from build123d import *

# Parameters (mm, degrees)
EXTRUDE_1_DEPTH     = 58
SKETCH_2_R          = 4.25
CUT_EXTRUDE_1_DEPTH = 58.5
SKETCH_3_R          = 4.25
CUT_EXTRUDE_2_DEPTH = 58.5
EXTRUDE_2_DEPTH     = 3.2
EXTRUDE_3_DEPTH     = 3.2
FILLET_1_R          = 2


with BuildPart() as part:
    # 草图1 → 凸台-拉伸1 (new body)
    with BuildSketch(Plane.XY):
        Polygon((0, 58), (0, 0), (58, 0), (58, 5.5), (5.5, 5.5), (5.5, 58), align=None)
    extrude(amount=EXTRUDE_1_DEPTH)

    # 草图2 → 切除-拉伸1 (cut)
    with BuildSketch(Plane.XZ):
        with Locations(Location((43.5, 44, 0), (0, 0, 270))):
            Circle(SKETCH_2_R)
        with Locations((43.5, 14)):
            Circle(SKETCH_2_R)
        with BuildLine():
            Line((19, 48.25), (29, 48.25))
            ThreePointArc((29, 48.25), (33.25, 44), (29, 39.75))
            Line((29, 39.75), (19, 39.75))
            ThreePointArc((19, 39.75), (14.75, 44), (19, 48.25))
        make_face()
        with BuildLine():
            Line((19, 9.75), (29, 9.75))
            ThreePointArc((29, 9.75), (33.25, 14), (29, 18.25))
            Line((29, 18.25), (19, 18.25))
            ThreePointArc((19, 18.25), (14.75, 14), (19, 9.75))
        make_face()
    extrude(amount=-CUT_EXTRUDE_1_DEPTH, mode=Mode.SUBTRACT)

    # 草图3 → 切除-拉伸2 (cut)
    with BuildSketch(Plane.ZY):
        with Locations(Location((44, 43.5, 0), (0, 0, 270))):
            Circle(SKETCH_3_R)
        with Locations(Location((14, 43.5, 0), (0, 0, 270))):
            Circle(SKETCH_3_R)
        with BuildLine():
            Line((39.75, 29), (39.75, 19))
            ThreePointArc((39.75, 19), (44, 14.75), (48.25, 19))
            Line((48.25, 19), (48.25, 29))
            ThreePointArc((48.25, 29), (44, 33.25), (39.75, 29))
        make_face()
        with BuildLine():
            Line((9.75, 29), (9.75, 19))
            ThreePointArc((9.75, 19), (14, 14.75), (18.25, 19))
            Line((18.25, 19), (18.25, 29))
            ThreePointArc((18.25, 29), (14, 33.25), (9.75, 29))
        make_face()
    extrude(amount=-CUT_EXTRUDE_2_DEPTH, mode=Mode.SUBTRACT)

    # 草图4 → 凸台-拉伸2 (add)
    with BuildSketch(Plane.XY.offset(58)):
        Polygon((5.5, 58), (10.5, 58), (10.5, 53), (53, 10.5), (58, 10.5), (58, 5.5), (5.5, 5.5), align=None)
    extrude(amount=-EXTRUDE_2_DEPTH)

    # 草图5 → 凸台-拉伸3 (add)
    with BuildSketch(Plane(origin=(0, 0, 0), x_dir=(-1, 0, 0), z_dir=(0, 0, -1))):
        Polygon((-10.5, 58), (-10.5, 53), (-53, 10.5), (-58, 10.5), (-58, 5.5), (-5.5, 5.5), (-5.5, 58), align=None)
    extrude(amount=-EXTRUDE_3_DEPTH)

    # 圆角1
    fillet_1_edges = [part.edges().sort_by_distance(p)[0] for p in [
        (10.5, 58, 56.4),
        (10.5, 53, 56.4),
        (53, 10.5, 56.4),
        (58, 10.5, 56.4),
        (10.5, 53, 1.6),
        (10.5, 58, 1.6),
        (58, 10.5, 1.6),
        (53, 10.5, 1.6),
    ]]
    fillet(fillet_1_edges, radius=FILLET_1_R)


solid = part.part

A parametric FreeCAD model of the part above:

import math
import FreeCAD as App
import Part
import Sketcher

V = App.Vector


def edges_at(feature, points):
    """Names of the edges that pass closest to the given points."""
    edges = feature.Shape.Edges
    near = lambda p: min(range(len(edges)), key=lambda i: edges[i].distToShape(Part.Vertex(*p))[0])
    return sorted({f"Edge{near(p) + 1}" for p in points})

doc = App.newDocument("Part")
body = doc.addObject("PartDesign::Body", "Body")

# Sketch on XY plane
sketch1 = body.newObject("Sketcher::SketchObject", "Sketch")
sketch1.AttachmentSupport = (doc.getObject("XY_Plane"), [""])
sketch1.MapMode = "FlatFace"
sketch1.addGeometry([
    Part.LineSegment(V(0, 58, 0), V(0, 0, 0)),  # 0
    Part.LineSegment(V(0, 0, 0), V(58, 0, 0)),  # 1
    Part.LineSegment(V(58, 0, 0), V(58, 6, 0)),  # 2
    Part.LineSegment(V(58, 6, 0), V(6, 6, 0)),  # 3
    Part.LineSegment(V(6, 6, 0), V(6, 58, 0)),  # 4
    Part.LineSegment(V(6, 58, 0), V(0, 58, 0)),  # 5
], False)
sketch1.addConstraint([
    Sketcher.Constraint("Coincident", 0, 2, 1, 1),
    Sketcher.Constraint("Coincident", 1, 2, 2, 1),
    Sketcher.Constraint("Coincident", 2, 2, 3, 1),
    Sketcher.Constraint("Coincident", 3, 2, 4, 1),
    Sketcher.Constraint("Coincident", 4, 2, 5, 1),
    Sketcher.Constraint("Coincident", 5, 2, 0, 1),
    Sketcher.Constraint("Vertical", 0),
    Sketcher.Constraint("Horizontal", 1),
    Sketcher.Constraint("Vertical", 2),
    Sketcher.Constraint("Horizontal", 3),
    Sketcher.Constraint("Vertical", 4),
    Sketcher.Constraint("Horizontal", 5),
    Sketcher.Constraint("Coincident", 0, 2, -1, 1),
    Sketcher.Constraint("Equal", 1, 0),
    Sketcher.Constraint("Equal", 5, 2),
    Sketcher.Constraint("DistanceX", 1, 1, 1, 2, 58.0),
    Sketcher.Constraint("DistanceX", 3, 2, 3, 1, 52.5),
])
pad1 = body.newObject("PartDesign::Pad", "Pad")
pad1.Profile = sketch1
pad1.Length = 58

# Sketch on XZ plane
sketch2 = body.newObject("Sketcher::SketchObject", "Sketch001")
sketch2.AttachmentSupport = (doc.getObject("XZ_Plane"), [""])
sketch2.MapMode = "FlatFace"
sketch2.addGeometry([
    Part.Circle(V(43.5, 44, 0), V(0, 0, 1), 4.2),  # 0
    Part.Circle(V(43.5, 14, 0), V(0, 0, 1), 4.2),  # 1
    Part.LineSegment(V(29, 48.2, 0), V(19, 48.2, 0)),  # 2
    Part.ArcOfCircle(Part.Circle(V(19, 44, 0), V(0, 0, 1), 4.2), math.radians(90), math.radians(270)),  # 3
    Part.LineSegment(V(19, 39.8, 0), V(29, 39.8, 0)),  # 4
    Part.ArcOfCircle(Part.Circle(V(29, 44, 0), V(0, 0, 1), 4.2), math.radians(-90), math.radians(90)),  # 5
    Part.LineSegment(V(19, 9.8, 0), V(29, 9.8, 0)),  # 6
    Part.ArcOfCircle(Part.Circle(V(29, 14, 0), V(0, 0, 1), 4.2), math.radians(-90), math.radians(90)),  # 7
    Part.LineSegment(V(29, 18.2, 0), V(19, 18.2, 0)),  # 8
    Part.ArcOfCircle(Part.Circle(V(19, 14, 0), V(0, 0, 1), 4.2), math.radians(90), math.radians(270)),  # 9
], False)
sketch2.addConstraint([
    Sketcher.Constraint("Tangent", 2, 2, 3, 1),
    Sketcher.Constraint("Tangent", 3, 2, 4, 1),
    Sketcher.Constraint("Tangent", 4, 2, 5, 1),
    Sketcher.Constraint("Tangent", 5, 2, 2, 1),
    Sketcher.Constraint("Tangent", 6, 2, 7, 1),
    Sketcher.Constraint("Tangent", 7, 2, 8, 1),
    Sketcher.Constraint("Tangent", 8, 2, 9, 1),
    Sketcher.Constraint("Tangent", 9, 2, 6, 1),
    Sketcher.Constraint("Horizontal", 2),
    Sketcher.Constraint("Horizontal", 4),
    Sketcher.Constraint("Horizontal", 6),
    Sketcher.Constraint("Horizontal", 8),
    Sketcher.Constraint("Equal", 0, 1),
    Sketcher.Constraint("Equal", 1, 3),
    Sketcher.Constraint("Equal", 5, 7),
    Sketcher.Constraint("Horizontal", 0, 3, 3, 3),
    Sketcher.Constraint("Horizontal", 1, 3, 7, 3),
    Sketcher.Constraint("Vertical", 0, 3, 1, 3),
    Sketcher.Constraint("Vertical", 5, 3, 7, 3),
    Sketcher.Constraint("Vertical", 3, 3, 9, 3),
    Sketcher.Constraint("Diameter", 0, 8.5),
    Sketcher.Constraint("DistanceX", 2, 2, 2, 1, 10.0),
    Sketcher.Constraint("DistanceY", -1, 1, 0, 3, 44.0),
    Sketcher.Constraint("DistanceY", -1, 1, 1, 3, 14.0),
    Sketcher.Constraint("DistanceX", -1, 1, 3, 3, 19.0),
    Sketcher.Constraint("DistanceX", -1, 1, 0, 3, 43.5),
])
pocket1 = body.newObject("PartDesign::Pocket", "Pocket")
pocket1.Profile = sketch2
pocket1.Length = 58.5

# Sketch on YZ plane
sketch3 = body.newObject("Sketcher::SketchObject", "Sketch002")
sketch3.AttachmentSupport = (doc.getObject("YZ_Plane"), [""])
sketch3.MapMode = "FlatFace"
sketch3.addGeometry([
    Part.Circle(V(43.5, 44, 0), V(0, 0, 1), 4.2),  # 0
    Part.Circle(V(43.5, 14, 0), V(0, 0, 1), 4.2),  # 1
    Part.LineSegment(V(29, 39.8, 0), V(19, 39.8, 0)),  # 2
    Part.ArcOfCircle(Part.Circle(V(19, 44, 0), V(0, 0, 1), 4.2), math.radians(90), math.radians(270)),  # 3
    Part.LineSegment(V(19, 48.2, 0), V(29, 48.2, 0)),  # 4
    Part.ArcOfCircle(Part.Circle(V(29, 44, 0), V(0, 0, 1), 4.2), math.radians(-90), math.radians(90)),  # 5
    Part.LineSegment(V(29, 9.8, 0), V(19, 9.8, 0)),  # 6
    Part.ArcOfCircle(Part.Circle(V(19, 14, 0), V(0, 0, 1), 4.2), math.radians(90), math.radians(270)),  # 7
    Part.LineSegment(V(19, 18.2, 0), V(29, 18.2, 0)),  # 8
    Part.ArcOfCircle(Part.Circle(V(29, 14, 0), V(0, 0, 1), 4.2), math.radians(-90), math.radians(90)),  # 9
], False)
sketch3.addConstraint([
    Sketcher.Constraint("Tangent", 2, 2, 3, 2),
    Sketcher.Constraint("Tangent", 3, 1, 4, 1),
    Sketcher.Constraint("Tangent", 4, 2, 5, 2),
    Sketcher.Constraint("Tangent", 5, 1, 2, 1),
    Sketcher.Constraint("Tangent", 6, 2, 7, 2),
    Sketcher.Constraint("Tangent", 7, 1, 8, 1),
    Sketcher.Constraint("Tangent", 8, 2, 9, 2),
    Sketcher.Constraint("Tangent", 9, 1, 6, 1),
    Sketcher.Constraint("Horizontal", 2),
    Sketcher.Constraint("Horizontal", 4),
    Sketcher.Constraint("Horizontal", 6),
    Sketcher.Constraint("Horizontal", 8),
    Sketcher.Constraint("Equal", 0, 1),
    Sketcher.Constraint("Equal", 1, 3),
    Sketcher.Constraint("Equal", 5, 7),
    Sketcher.Constraint("Horizontal", 0, 3, 3, 3),
    Sketcher.Constraint("Horizontal", 1, 3, 7, 3),
    Sketcher.Constraint("Vertical", 0, 3, 1, 3),
    Sketcher.Constraint("Vertical", 3, 3, 7, 3),
    Sketcher.Constraint("Vertical", 5, 3, 9, 3),
    Sketcher.Constraint("Diameter", 0, 8.5),
    Sketcher.Constraint("DistanceX", 2, 2, 2, 1, 10.0),
    Sketcher.Constraint("DistanceY", -1, 1, 0, 3, 44.0),
    Sketcher.Constraint("DistanceY", -1, 1, 1, 3, 14.0),
    Sketcher.Constraint("DistanceX", -1, 1, 3, 3, 19.0),
    Sketcher.Constraint("DistanceX", -1, 1, 0, 3, 43.5),
])
pocket2 = body.newObject("PartDesign::Pocket", "Pocket001")
pocket2.Profile = sketch3
pocket2.Length = 58.5
pocket2.Reversed = True

# Sketch on XY plane
sketch4 = body.newObject("Sketcher::SketchObject", "Sketch003")
sketch4.AttachmentSupport = (doc.getObject("XY_Plane"), [""])
sketch4.MapMode = "FlatFace"
sketch4.AttachmentOffset = App.Placement(V(0, 0, 58), App.Rotation())
sketch4.addGeometry([
    Part.LineSegment(V(10, 58, 0), V(6, 58, 0)),  # 0
    Part.LineSegment(V(6, 58, 0), V(6, 6, 0)),  # 1
    Part.LineSegment(V(6, 6, 0), V(58, 6, 0)),  # 2
    Part.LineSegment(V(58, 6, 0), V(58, 10, 0)),  # 3
    Part.LineSegment(V(58, 10, 0), V(53, 10, 0)),  # 4
    Part.LineSegment(V(53, 10, 0), V(10, 53, 0)),  # 5
    Part.LineSegment(V(10, 53, 0), V(10, 58, 0)),  # 6
], False)
sketch4.addConstraint([
    Sketcher.Constraint("Coincident", 0, 2, 1, 1),
    Sketcher.Constraint("Coincident", 1, 2, 2, 1),
    Sketcher.Constraint("Coincident", 2, 2, 3, 1),
    Sketcher.Constraint("Coincident", 3, 2, 4, 1),
    Sketcher.Constraint("Coincident", 4, 2, 5, 1),
    Sketcher.Constraint("Coincident", 5, 2, 6, 1),
    Sketcher.Constraint("Coincident", 6, 2, 0, 1),
    Sketcher.Constraint("Horizontal", 0),
    Sketcher.Constraint("Vertical", 1),
    Sketcher.Constraint("Horizontal", 2),
    Sketcher.Constraint("Vertical", 3),
    Sketcher.Constraint("Horizontal", 4),
    Sketcher.Constraint("Vertical", 6),
    Sketcher.Constraint("Equal", 0, 4),
    Sketcher.Constraint("Equal", 2, 1),
    Sketcher.Constraint("Equal", 4, 3),
    Sketcher.Constraint("Equal", 3, 6),
    Sketcher.Constraint("DistanceX", 0, 2, 0, 1, 5.0),
    Sketcher.Constraint("DistanceX", 2, 1, 2, 2, 52.5),
    Sketcher.Constraint("DistanceY", -1, 1, 0, 2, 58.0),
    Sketcher.Constraint("DistanceX", -1, 1, 2, 2, 58.0),
])
pad2 = body.newObject("PartDesign::Pad", "Pad001")
pad2.Profile = sketch4
pad2.Length = 3.2
pad2.Reversed = True

# Sketch on XY plane
sketch5 = body.newObject("Sketcher::SketchObject", "Sketch004")
sketch5.AttachmentSupport = (doc.getObject("XY_Plane"), [""])
sketch5.MapMode = "FlatFace"
sketch5.addGeometry([
    Part.LineSegment(V(10, 58, 0), V(10, 53, 0)),  # 0
    Part.LineSegment(V(10, 53, 0), V(53, 10, 0)),  # 1
    Part.LineSegment(V(53, 10, 0), V(58, 10, 0)),  # 2
    Part.LineSegment(V(58, 10, 0), V(58, 6, 0)),  # 3
    Part.LineSegment(V(58, 6, 0), V(6, 6, 0)),  # 4
    Part.LineSegment(V(6, 6, 0), V(6, 58, 0)),  # 5
    Part.LineSegment(V(6, 58, 0), V(10, 58, 0)),  # 6
], False)
sketch5.addConstraint([
    Sketcher.Constraint("Coincident", 0, 2, 1, 1),
    Sketcher.Constraint("Coincident", 1, 2, 2, 1),
    Sketcher.Constraint("Coincident", 2, 2, 3, 1),
    Sketcher.Constraint("Coincident", 3, 2, 4, 1),
    Sketcher.Constraint("Coincident", 4, 2, 5, 1),
    Sketcher.Constraint("Coincident", 5, 2, 6, 1),
    Sketcher.Constraint("Coincident", 6, 2, 0, 1),
    Sketcher.Constraint("Vertical", 0),
    Sketcher.Constraint("Horizontal", 2),
    Sketcher.Constraint("Vertical", 3),
    Sketcher.Constraint("Horizontal", 4),
    Sketcher.Constraint("Vertical", 5),
    Sketcher.Constraint("Horizontal", 6),
    Sketcher.Constraint("Equal", 2, 6),
    Sketcher.Constraint("Equal", 6, 0),
    Sketcher.Constraint("Equal", 0, 3),
    Sketcher.Constraint("Equal", 4, 5),
    Sketcher.Constraint("DistanceX", 2, 1, 2, 2, 5.0),
    Sketcher.Constraint("DistanceX", 4, 2, 4, 1, 52.5),
    Sketcher.Constraint("DistanceY", -1, 1, 0, 2, 53.0),
    Sketcher.Constraint("DistanceX", -1, 1, 1, 2, 53.0),
])
pad3 = body.newObject("PartDesign::Pad", "Pad002")
pad3.Profile = sketch5
pad3.Length = 3.2
doc.recompute()

fillet = body.newObject("PartDesign::Fillet", "Fillet")
fillet.Base = (pad3, edges_at(pad3, [
    (10.5, 58, 56.4),
    (10.5, 53, 56.4),
    (53, 10.5, 56.4),
    (58, 10.5, 56.4),
    (10.5, 53, 1.6),
    (10.5, 58, 1.6),
    (58, 10.5, 1.6),
    (53, 10.5, 1.6),
]))
fillet.Radius = 2

doc.recompute()
